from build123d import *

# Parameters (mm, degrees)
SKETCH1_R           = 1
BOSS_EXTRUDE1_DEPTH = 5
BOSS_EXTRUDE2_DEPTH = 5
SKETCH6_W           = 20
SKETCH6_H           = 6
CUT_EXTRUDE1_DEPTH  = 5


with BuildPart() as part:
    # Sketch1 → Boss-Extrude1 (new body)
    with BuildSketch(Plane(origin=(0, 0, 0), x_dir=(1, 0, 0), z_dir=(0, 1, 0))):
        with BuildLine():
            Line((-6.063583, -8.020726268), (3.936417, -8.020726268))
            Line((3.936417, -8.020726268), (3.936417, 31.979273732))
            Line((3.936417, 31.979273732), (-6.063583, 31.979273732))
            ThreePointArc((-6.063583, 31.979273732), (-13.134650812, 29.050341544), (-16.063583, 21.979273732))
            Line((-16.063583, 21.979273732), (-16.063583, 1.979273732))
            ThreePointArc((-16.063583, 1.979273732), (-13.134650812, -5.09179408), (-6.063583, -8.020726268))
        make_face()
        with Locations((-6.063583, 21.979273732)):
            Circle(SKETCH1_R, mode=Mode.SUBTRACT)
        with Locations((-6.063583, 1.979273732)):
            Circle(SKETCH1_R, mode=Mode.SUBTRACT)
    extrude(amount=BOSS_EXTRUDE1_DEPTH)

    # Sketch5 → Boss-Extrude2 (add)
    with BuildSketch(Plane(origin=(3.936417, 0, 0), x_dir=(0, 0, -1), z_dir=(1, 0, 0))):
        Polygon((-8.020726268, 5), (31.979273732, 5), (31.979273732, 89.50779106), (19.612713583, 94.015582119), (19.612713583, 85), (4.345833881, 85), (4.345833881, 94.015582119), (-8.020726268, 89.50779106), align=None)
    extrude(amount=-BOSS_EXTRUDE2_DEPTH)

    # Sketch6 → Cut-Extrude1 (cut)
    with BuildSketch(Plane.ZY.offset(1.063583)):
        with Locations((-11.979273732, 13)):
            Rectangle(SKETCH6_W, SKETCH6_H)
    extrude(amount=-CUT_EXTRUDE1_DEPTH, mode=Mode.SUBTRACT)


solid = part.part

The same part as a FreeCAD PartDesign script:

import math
import FreeCAD as App
import Part
import Sketcher

doc = App.newDocument("Part")
body = doc.addObject("PartDesign::Body", "Body")

# Sketch on XZ plane
sketch1 = body.newObject("Sketcher::SketchObject", "Sketch")
sketch1.AttachmentSupport = (doc.getObject("XZ_Plane"), [""])
sketch1.MapMode = "FlatFace"
sketch1.addGeometry([
    Part.LineSegment(App.Vector(-6.1, 8, 0), App.Vector(3.9, 8, 0)),  # 0
    Part.LineSegment(App.Vector(3.9, 8, 0), App.Vector(3.9, -32, 0)),  # 1
    Part.LineSegment(App.Vector(3.9, -32, 0), App.Vector(-6.1, -32, 0)),  # 2
    Part.ArcOfCircle(Part.Circle(App.Vector(-6.1, -22, 0), App.Vector(0, 0, 1), 10), math.radians(180), math.radians(270)),  # 3
    Part.LineSegment(App.Vector(-16.1, -22, 0), App.Vector(-16.1, -2, 0)),  # 4
    Part.ArcOfCircle(Part.Circle(App.Vector(-6.1, -2, 0), App.Vector(0, 0, 1), 10), math.radians(90), math.radians(180)),  # 5
    Part.Circle(App.Vector(-6.1, -2, 0), App.Vector(0, 0, 1), 1),  # 6
    Part.Circle(App.Vector(-6.1, -22, 0), App.Vector(0, 0, 1), 1),  # 7
], False)
sketch1.addConstraint([
    Sketcher.Constraint("Coincident", 0, 2, 1, 1),
    Sketcher.Constraint("Coincident", 1, 2, 2, 1),
    Sketcher.Constraint("Tangent", 2, 2, 3, 2),
    Sketcher.Constraint("Tangent", 3, 1, 4, 1),
    Sketcher.Constraint("Tangent", 4, 2, 5, 2),
    Sketcher.Constraint("Tangent", 5, 1, 0, 1),
    Sketcher.Constraint("Horizontal", 0),
    Sketcher.Constraint("Vertical", 1),
    Sketcher.Constraint("Horizontal", 2),
    Sketcher.Constraint("Vertical", 4),
    Sketcher.Constraint("Coincident", 6, 3, 5, 3),
    Sketcher.Constraint("Coincident", 7, 3, 3, 3),
    Sketcher.Constraint("Equal", 3, 5),
    Sketcher.Constraint("Equal", 6, 7),
    Sketcher.Constraint("Diameter", 6, 2.0),
    Sketcher.Constraint("Radius", 3, 10.0),
    Sketcher.Constraint("DistanceX", 0, 1, 0, 2, 10.0),
    Sketcher.Constraint("DistanceY", 1, 2, 1, 1, 40.0),
    Sketcher.Constraint("DistanceX", 3, 3, -1, 1, 6.063583),
    Sketcher.Constraint("DistanceY", 3, 3, -1, 1, 21.979274),
])
pad1 = body.newObject("PartDesign::Pad", "Pad")
pad1.Profile = sketch1
pad1.Length = 5
pad1.Reversed = True

# Sketch on YZ plane
sketch2 = body.newObject("Sketcher::SketchObject", "Sketch001")
sketch2.AttachmentSupport = (doc.getObject("YZ_Plane"), [""])
sketch2.MapMode = "FlatFace"
sketch2.AttachmentOffset = App.Placement(App.Vector(0, 0, 3.936417), App.Rotation())
sketch2.addGeometry([
    Part.LineSegment(App.Vector(5, 8, 0), App.Vector(5, -32, 0)),  # 0
    Part.LineSegment(App.Vector(5, -32, 0), App.Vector(90, -32, 0)),  # 1
    Part.LineSegment(App.Vector(90, -32, 0), App.Vector(94, -20, 0)),  # 2
    Part.LineSegment(App.Vector(94, -20, 0), App.Vector(85, -20, 0)),  # 3
    Part.LineSegment(App.Vector(85, -20, 0), App.Vector(85, -4, 0)),  # 4
    Part.LineSegment(App.Vector(85, -4, 0), App.Vector(94, -4, 0)),  # 5
    Part.LineSegment(App.Vector(94, -4, 0), App.Vector(90, 8, 0)),  # 6
    Part.LineSegment(App.Vector(90, 8, 0), App.Vector(5, 8, 0)),  # 7
], False)
sketch2.addConstraint([
    Sketcher.Constraint("Coincident", 0, 2, 1, 1),
    Sketcher.Constraint("Coincident", 1, 2, 2, 1),
    Sketcher.Constraint("Coincident", 2, 2, 3, 1),
    Sketcher.Constraint("Coincident", 3, 2, 4, 1),
    Sketcher.Constraint("Coincident", 4, 2, 5, 1),
    Sketcher.Constraint("Coincident", 5, 2, 6, 1),
    Sketcher.Constraint("Coincident", 6, 2, 7, 1),
    Sketcher.Constraint("Coincident", 7, 2, 0, 1),
    Sketcher.Constraint("Vertical", 0),
    Sketcher.Constraint("Horizontal", 1),
    Sketcher.Constraint("Horizontal", 3),
    Sketcher.Constraint("Vertical", 4),
    Sketcher.Constraint("Horizontal", 5),
    Sketcher.Constraint("Horizontal", 7),
    Sketcher.Constraint("Vertical", 2, 2, 5, 2),
    Sketcher.Constraint("Vertical", 1, 2, 6, 2),
    Sketcher.Constraint("Equal", 2, 6),
    Sketcher.Constraint("DistanceY", 0, 2, 0, 1, 40.0),
    Sketcher.Constraint("DistanceX", -1, 1, 0, 2, 5.0),
    Sketcher.Constraint("DistanceX", -1, 1, 3, 2, 85.0),
    Sketcher.Constraint("DistanceX", 1, 1, 1, 2, 84.507791),
    Sketcher.Constraint("DistanceY", 4, 1, 4, 2, 15.26688),
    Sketcher.Constraint("DistanceX", 3, 2, 3, 1, 9.015582),
    Sketcher.Constraint("DistanceY", 0, 2, -1, 1, 31.979274),
])
pad2 = body.newObject("PartDesign::Pad", "Pad001")
pad2.Profile = sketch2
pad2.Length = 5
pad2.Reversed = True

# Sketch on YZ plane
sketch3 = body.newObject("Sketcher::SketchObject", "Sketch002")
sketch3.AttachmentSupport = (doc.getObject("YZ_Plane"), [""])
sketch3.MapMode = "FlatFace"
sketch3.AttachmentOffset = App.Placement(App.Vector(0, 0, -1.063583), App.Rotation())
sketch3.addGeometry([
    Part.LineSegment(App.Vector(16, -22, 0), App.Vector(10, -22, 0)),
    Part.LineSegment(App.Vector(10, -22, 0), App.Vector(10, -2, 0)),
    Part.LineSegment(App.Vector(10, -2, 0), App.Vector(16, -2, 0)),
    Part.LineSegment(App.Vector(16, -2, 0), App.Vector(16, -22, 0)),
], False)
sketch3.addConstraint([
    Sketcher.Constraint("Coincident", 0, 2, 1, 1),
    Sketcher.Constraint("Coincident", 1, 2, 2, 1),
    Sketcher.Constraint("Coincident", 2, 2, 3, 1),
    Sketcher.Constraint("Coincident", 3, 2, 0, 1),
    Sketcher.Constraint("Horizontal", 0),
    Sketcher.Constraint("Vertical", 1),
    Sketcher.Constraint("Horizontal", 2),
    Sketcher.Constraint("Vertical", 3),
    Sketcher.Constraint("DistanceX", 0, 2, 0, 1, 6.0),
    Sketcher.Constraint("DistanceY", 1, 1, 1, 2, 20.0),
    Sketcher.Constraint("DistanceX", -1, 1, 0, 2, 10.0),
    Sketcher.Constraint("DistanceY", 0, 2, -1, 1, 21.979274),
])
pocket1 = body.newObject("PartDesign::Pocket", "Pocket")
pocket1.Profile = sketch3
pocket1.Length = 5
pocket1.Reversed = True

doc.recompute()
